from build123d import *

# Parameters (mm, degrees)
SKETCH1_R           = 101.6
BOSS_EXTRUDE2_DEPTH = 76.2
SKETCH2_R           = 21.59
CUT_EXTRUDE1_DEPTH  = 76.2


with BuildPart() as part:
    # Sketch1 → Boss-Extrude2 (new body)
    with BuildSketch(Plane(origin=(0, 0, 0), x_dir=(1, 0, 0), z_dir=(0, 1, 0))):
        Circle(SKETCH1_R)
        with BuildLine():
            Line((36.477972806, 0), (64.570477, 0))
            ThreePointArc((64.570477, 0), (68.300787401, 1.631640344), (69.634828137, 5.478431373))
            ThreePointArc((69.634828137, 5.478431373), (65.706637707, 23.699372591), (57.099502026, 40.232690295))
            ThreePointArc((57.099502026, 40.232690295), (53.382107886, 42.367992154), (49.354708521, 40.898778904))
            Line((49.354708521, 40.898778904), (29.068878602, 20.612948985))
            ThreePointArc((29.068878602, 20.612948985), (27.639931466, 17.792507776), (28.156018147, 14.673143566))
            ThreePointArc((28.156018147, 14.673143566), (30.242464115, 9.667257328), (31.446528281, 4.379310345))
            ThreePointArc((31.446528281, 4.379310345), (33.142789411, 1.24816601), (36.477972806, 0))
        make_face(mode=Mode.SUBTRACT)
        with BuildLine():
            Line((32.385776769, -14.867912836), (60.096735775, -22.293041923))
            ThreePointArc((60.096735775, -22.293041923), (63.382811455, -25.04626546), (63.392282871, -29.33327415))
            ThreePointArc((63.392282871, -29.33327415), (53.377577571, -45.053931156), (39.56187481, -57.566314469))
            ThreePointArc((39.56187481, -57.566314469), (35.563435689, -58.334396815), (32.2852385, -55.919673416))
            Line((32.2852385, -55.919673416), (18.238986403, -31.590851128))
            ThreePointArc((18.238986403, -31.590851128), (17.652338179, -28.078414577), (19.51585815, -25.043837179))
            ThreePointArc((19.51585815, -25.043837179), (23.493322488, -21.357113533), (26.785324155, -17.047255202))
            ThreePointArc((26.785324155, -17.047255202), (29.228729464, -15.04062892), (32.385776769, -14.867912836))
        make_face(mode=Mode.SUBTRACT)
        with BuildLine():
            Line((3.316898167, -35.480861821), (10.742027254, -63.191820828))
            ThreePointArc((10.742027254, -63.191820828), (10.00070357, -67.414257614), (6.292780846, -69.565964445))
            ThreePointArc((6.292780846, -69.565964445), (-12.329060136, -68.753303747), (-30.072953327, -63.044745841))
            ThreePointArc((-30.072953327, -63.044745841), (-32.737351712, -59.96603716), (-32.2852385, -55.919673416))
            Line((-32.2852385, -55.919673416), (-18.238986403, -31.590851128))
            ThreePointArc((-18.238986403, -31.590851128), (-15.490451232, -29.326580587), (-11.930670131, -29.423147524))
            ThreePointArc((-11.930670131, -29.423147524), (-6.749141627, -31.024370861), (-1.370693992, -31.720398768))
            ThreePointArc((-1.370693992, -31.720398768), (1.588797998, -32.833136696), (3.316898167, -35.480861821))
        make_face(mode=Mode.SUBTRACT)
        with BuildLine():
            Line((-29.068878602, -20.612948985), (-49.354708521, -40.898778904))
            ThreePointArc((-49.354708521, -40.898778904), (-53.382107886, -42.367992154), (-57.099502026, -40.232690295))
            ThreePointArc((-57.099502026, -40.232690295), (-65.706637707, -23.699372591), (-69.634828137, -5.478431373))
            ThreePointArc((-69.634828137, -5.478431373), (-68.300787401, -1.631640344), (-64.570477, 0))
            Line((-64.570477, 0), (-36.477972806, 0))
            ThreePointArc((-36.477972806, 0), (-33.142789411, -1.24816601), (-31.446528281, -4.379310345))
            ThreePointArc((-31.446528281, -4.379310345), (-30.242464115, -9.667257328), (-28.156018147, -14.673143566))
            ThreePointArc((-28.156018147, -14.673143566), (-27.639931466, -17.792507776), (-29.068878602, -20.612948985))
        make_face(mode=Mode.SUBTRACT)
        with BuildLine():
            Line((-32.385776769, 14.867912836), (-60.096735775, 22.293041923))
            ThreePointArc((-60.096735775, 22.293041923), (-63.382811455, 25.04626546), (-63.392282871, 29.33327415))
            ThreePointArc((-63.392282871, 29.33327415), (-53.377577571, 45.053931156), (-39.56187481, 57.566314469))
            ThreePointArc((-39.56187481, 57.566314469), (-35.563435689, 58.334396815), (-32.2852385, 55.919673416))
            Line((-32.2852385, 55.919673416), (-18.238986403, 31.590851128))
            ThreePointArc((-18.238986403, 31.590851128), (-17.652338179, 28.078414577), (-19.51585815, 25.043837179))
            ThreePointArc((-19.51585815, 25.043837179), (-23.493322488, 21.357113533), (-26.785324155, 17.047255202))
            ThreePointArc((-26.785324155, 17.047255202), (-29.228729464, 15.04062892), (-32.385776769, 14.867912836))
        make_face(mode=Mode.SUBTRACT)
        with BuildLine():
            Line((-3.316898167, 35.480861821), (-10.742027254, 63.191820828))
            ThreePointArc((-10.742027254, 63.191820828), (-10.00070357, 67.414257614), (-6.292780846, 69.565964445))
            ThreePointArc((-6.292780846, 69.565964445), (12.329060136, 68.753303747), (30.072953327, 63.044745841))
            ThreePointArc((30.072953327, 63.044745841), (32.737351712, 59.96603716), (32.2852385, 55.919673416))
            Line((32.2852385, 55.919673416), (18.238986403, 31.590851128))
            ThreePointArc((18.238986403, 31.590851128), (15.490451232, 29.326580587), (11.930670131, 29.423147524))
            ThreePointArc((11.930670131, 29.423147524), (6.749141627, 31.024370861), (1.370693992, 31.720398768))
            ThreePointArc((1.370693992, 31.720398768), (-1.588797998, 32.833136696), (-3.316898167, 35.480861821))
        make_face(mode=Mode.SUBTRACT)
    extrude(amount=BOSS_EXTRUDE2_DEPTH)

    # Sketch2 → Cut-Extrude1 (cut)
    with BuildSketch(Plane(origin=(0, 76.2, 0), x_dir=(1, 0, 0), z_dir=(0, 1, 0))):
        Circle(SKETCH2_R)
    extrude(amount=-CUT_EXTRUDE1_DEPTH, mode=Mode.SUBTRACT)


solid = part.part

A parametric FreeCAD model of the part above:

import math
import FreeCAD as App
import Part
import Sketcher

V = App.Vector
Q = App.Units.Quantity

doc = App.newDocument("Part")
params = doc.addObject("Spreadsheet::Sheet", "Params")
for row, (alias, value) in enumerate([
    ("sketch1_diameter", "8 in"),
    ("sketch1_radius", "0.2 in"),
    ("sketch1_radius2", "2.75 in"),
    ("sketch1_radius3", "1.25 in"),
    ("pad1_length", "3 in"),
    ("sketch2_diameter", "1.7 in"),
    ("pocket1_length", "3 in"),
], start=1):
    params.set(f"A{row}", alias)
    params.set(f"B{row}", "=" + value)
    params.setAlias(f"B{row}", alias)

body = doc.addObject("PartDesign::Body", "Body")

# Sketch on XZ plane
sketch1 = doc.addObject("Sketcher::SketchObject", "Sketch")
body.addObject(sketch1)
sketch1.AttachmentSupport = (doc.XZ_Plane, [""])
sketch1.MapMode = "FlatFace"
sketch1.addGeometry(Part.Circle(V(0, 0, 0), V(0, 0, 1), 102), False)
sketch1.addGeometry(Part.ArcOfCircle(Part.Circle(V(-2, 37, 0), V(0, 0, 1), 5), math.radians(-88), math.radians(-15)), False)
sketch1.addGeometry(Part.LineSegment(V(3, 35, 0), V(11, 63, 0)), False)
sketch1.addGeometry(Part.ArcOfCircle(Part.Circle(V(6, 65, 0), V(0, 0, 1), 5), math.radians(-15), math.radians(85)), False)
sketch1.addGeometry(Part.ArcOfCircle(Part.Circle(V(0, 0, 0), V(0, 0, 1), 70), math.radians(85), math.radians(116)), False)
sketch1.addGeometry(Part.ArcOfCircle(Part.Circle(V(-28, 58, 0), V(0, 0, 1), 5), math.radians(116), math.radians(210)), False)
sketch1.addGeometry(Part.LineSegment(V(-32, 56, 0), V(-18, 32, 0)), False)
sketch1.addGeometry(Part.ArcOfCircle(Part.Circle(V(-14, 34, 0), V(0, 0, 1), 5), math.radians(-150), math.radians(-68)), False)
sketch1.addGeometry(Part.ArcOfCircle(Part.Circle(V(0, 0, 0), V(0, 0, 1), 32), math.radians(92.47), math.radians(112.07)), False)
sketch1.addGeometry(Part.ArcOfCircle(Part.Circle(V(-33, 17, 0), V(0, 0, 1), 5), math.radians(-28), math.radians(45)), False)
sketch1.addGeometry(Part.LineSegment(V(-29, 21, 0), V(-49, 41, 0)), False)
sketch1.addGeometry(Part.ArcOfCircle(Part.Circle(V(-53, 37, 0), V(0, 0, 1), 5), math.radians(45), math.radians(145)), False)
sketch1.addGeometry(Part.ArcOfCircle(Part.Circle(V(0, 0, 0), V(0, 0, 1), 70), math.radians(145), math.radians(176)), False)
sketch1.addGeometry(Part.ArcOfCircle(Part.Circle(V(-65, 5, 0), V(0, 0, 1), 5), math.radians(176), math.radians(270)), False)
sketch1.addGeometry(Part.LineSegment(V(-65, 0, 0), V(-36, 0, 0)), False)
sketch1.addGeometry(Part.ArcOfCircle(Part.Circle(V(-36, 5, 0), V(0, 0, 1), 5), math.radians(-90), math.radians(-8)), False)
sketch1.addGeometry(Part.ArcOfCircle(Part.Circle(V(0, 0, 0), V(0, 0, 1), 32), math.radians(152.47), math.radians(172.07)), False)
sketch1.addGeometry(Part.ArcOfCircle(Part.Circle(V(31, 20, 0), V(0, 0, 1), 5), math.radians(-148), math.radians(-75)), False)
sketch1.addGeometry(Part.LineSegment(V(32, 15, 0), V(60, 22, 0)), False)
sketch1.addGeometry(Part.ArcOfCircle(Part.Circle(V(59, 27, 0), V(0, 0, 1), 5), math.radians(-75), math.radians(25)), False)
sketch1.addGeometry(Part.ArcOfCircle(Part.Circle(V(0, 0, 0), V(0, 0, 1), 70), math.radians(25), math.radians(56)), False)
sketch1.addGeometry(Part.ArcOfCircle(Part.Circle(V(37, 53, 0), V(0, 0, 1), 5), math.radians(56), math.radians(150)), False)
sketch1.addGeometry(Part.LineSegment(V(32, 56, 0), V(18, 32, 0)), False)
sketch1.addGeometry(Part.ArcOfCircle(Part.Circle(V(23, 29, 0), V(0, 0, 1), 5), math.radians(150), math.radians(232)), False)
sketch1.addGeometry(Part.ArcOfCircle(Part.Circle(V(0, 0, 0), V(0, 0, 1), 32), math.radians(32.47), math.radians(52.07)), False)
sketch1.addGeometry(Part.ArcOfCircle(Part.Circle(V(-31, -20, 0), V(0, 0, 1), 5), math.radians(32), math.radians(105)), False)
sketch1.addGeometry(Part.LineSegment(V(-32, -15, 0), V(-60, -22, 0)), False)
sketch1.addGeometry(Part.ArcOfCircle(Part.Circle(V(-59, -27, 0), V(0, 0, 1), 5), math.radians(105), math.radians(205)), False)
sketch1.addGeometry(Part.ArcOfCircle(Part.Circle(V(0, 0, 0), V(0, 0, 1), 70), math.radians(-155), math.radians(-124)), False)
sketch1.addGeometry(Part.ArcOfCircle(Part.Circle(V(-37, -53, 0), V(0, 0, 1), 5), math.radians(-124), math.radians(-30)), False)
sketch1.addGeometry(Part.LineSegment(V(-32, -56, 0), V(-18, -32, 0)), False)
sketch1.addGeometry(Part.ArcOfCircle(Part.Circle(V(-23, -29, 0), V(0, 0, 1), 5), math.radians(-30), math.radians(52)), False)
sketch1.addGeometry(Part.ArcOfCircle(Part.Circle(V(0, 0, 0), V(0, 0, 1), 32), math.radians(-147.53), math.radians(-127.93)), False)
sketch1.addGeometry(Part.LineSegment(V(65, 0, 0), V(36, 0, 0)), False)
sketch1.addGeometry(Part.ArcOfCircle(Part.Circle(V(36, -5, 0), V(0, 0, 1), 5), math.radians(90), math.radians(172)), False)
sketch1.addGeometry(Part.ArcOfCircle(Part.Circle(V(0, 0, 0), V(0, 0, 1), 32), math.radians(-27.53), math.radians(-7.93)), False)
sketch1.addGeometry(Part.ArcOfCircle(Part.Circle(V(33, -17, 0), V(0, 0, 1), 5), math.radians(152), math.radians(225)), False)
sketch1.addGeometry(Part.LineSegment(V(29, -21, 0), V(49, -41, 0)), False)
sketch1.addGeometry(Part.ArcOfCircle(Part.Circle(V(53, -37, 0), V(0, 0, 1), 5), math.radians(-135), math.radians(-35)), False)
sketch1.addGeometry(Part.ArcOfCircle(Part.Circle(V(0, 0, 0), V(0, 0, 1), 70), math.radians(-35), math.radians(-4)), False)
sketch1.addGeometry(Part.ArcOfCircle(Part.Circle(V(65, -5, 0), V(0, 0, 1), 5), math.radians(-4), math.radians(90)), False)
sketch1.addGeometry(Part.ArcOfCircle(Part.Circle(V(2, -37, 0), V(0, 0, 1), 5), math.radians(92), math.radians(165)), False)
sketch1.addGeometry(Part.LineSegment(V(-3, -35, 0), V(-11, -63, 0)), False)
sketch1.addGeometry(Part.ArcOfCircle(Part.Circle(V(-6, -65, 0), V(0, 0, 1), 5), math.radians(165), math.radians(265)), False)
sketch1.addGeometry(Part.ArcOfCircle(Part.Circle(V(0, 0, 0), V(0, 0, 1), 70), math.radians(-95), math.radians(-64)), False)
sketch1.addGeometry(Part.ArcOfCircle(Part.Circle(V(28, -58, 0), V(0, 0, 1), 5), math.radians(-64), math.radians(30)), False)
sketch1.addGeometry(Part.LineSegment(V(32, -56, 0), V(18, -32, 0)), False)
sketch1.addGeometry(Part.ArcOfCircle(Part.Circle(V(14, -34, 0), V(0, 0, 1), 5), math.radians(30), math.radians(112)), False)
sketch1.addGeometry(Part.ArcOfCircle(Part.Circle(V(0, 0, 0), V(0, 0, 1), 32), math.radians(-87.53), math.radians(-67.93)), False)
sketch1.addConstraint(Sketcher.Constraint("Tangent", 1, 2, 2, 1))
sketch1.addConstraint(Sketcher.Constraint("Tangent", 2, 2, 3, 1))
sketch1.addConstraint(Sketcher.Constraint("Tangent", 3, 2, 4, 1))
sketch1.addConstraint(Sketcher.Constraint("Tangent", 4, 2, 5, 1))
sketch1.addConstraint(Sketcher.Constraint("Tangent", 5, 2, 6, 1))
sketch1.addConstraint(Sketcher.Constraint("Tangent", 6, 2, 7, 1))
sketch1.addConstraint(Sketcher.Constraint("Tangent", 7, 2, 8, 2))
sketch1.addConstraint(Sketcher.Constraint("Tangent", 8, 1, 1, 1))
sketch1.addConstraint(Sketcher.Constraint("Tangent", 9, 2, 10, 1))
sketch1.addConstraint(Sketcher.Constraint("Tangent", 10, 2, 11, 1))
sketch1.addConstraint(Sketcher.Constraint("Tangent", 11, 2, 12, 1))
sketch1.addConstraint(Sketcher.Constraint("Tangent", 12, 2, 13, 1))
sketch1.addConstraint(Sketcher.Constraint("Tangent", 13, 2, 14, 1))
sketch1.addConstraint(Sketcher.Constraint("Tangent", 14, 2, 15, 1))
sketch1.addConstraint(Sketcher.Constraint("Tangent", 15, 2, 16, 2))
sketch1.addConstraint(Sketcher.Constraint("Tangent", 16, 1, 9, 1))
sketch1.addConstraint(Sketcher.Constraint("Tangent", 17, 2, 18, 1))
sketch1.addConstraint(Sketcher.Constraint("Tangent", 18, 2, 19, 1))
sketch1.addConstraint(Sketcher.Constraint("Tangent", 19, 2, 20, 1))
sketch1.addConstraint(Sketcher.Constraint("Tangent", 20, 2, 21, 1))
sketch1.addConstraint(Sketcher.Constraint("Tangent", 21, 2, 22, 1))
sketch1.addConstraint(Sketcher.Constraint("Tangent", 22, 2, 23, 1))
sketch1.addConstraint(Sketcher.Constraint("Tangent", 23, 2, 24, 2))
sketch1.addConstraint(Sketcher.Constraint("Tangent", 24, 1, 17, 1))
sketch1.addConstraint(Sketcher.Constraint("Tangent", 25, 2, 26, 1))
sketch1.addConstraint(Sketcher.Constraint("Tangent", 26, 2, 27, 1))
sketch1.addConstraint(Sketcher.Constraint("Tangent", 27, 2, 28, 1))
sketch1.addConstraint(Sketcher.Constraint("Tangent", 28, 2, 29, 1))
sketch1.addConstraint(Sketcher.Constraint("Tangent", 29, 2, 30, 1))
sketch1.addConstraint(Sketcher.Constraint("Tangent", 30, 2, 31, 1))
sketch1.addConstraint(Sketcher.Constraint("Tangent", 31, 2, 32, 2))
sketch1.addConstraint(Sketcher.Constraint("Tangent", 32, 1, 25, 1))
sketch1.addConstraint(Sketcher.Constraint("Tangent", 33, 2, 34, 1))
sketch1.addConstraint(Sketcher.Constraint("Tangent", 34, 2, 35, 2))
sketch1.addConstraint(Sketcher.Constraint("Tangent", 35, 1, 36, 1))
sketch1.addConstraint(Sketcher.Constraint("Tangent", 36, 2, 37, 1))
sketch1.addConstraint(Sketcher.Constraint("Tangent", 37, 2, 38, 1))
sketch1.addConstraint(Sketcher.Constraint("Tangent", 38, 2, 39, 1))
sketch1.addConstraint(Sketcher.Constraint("Tangent", 39, 2, 40, 1))
sketch1.addConstraint(Sketcher.Constraint("Tangent", 40, 2, 33, 1))
sketch1.addConstraint(Sketcher.Constraint("Tangent", 41, 2, 42, 1))
sketch1.addConstraint(Sketcher.Constraint("Tangent", 42, 2, 43, 1))
sketch1.addConstraint(Sketcher.Constraint("Tangent", 43, 2, 44, 1))
sketch1.addConstraint(Sketcher.Constraint("Tangent", 44, 2, 45, 1))
sketch1.addConstraint(Sketcher.Constraint("Tangent", 45, 2, 46, 1))
sketch1.addConstraint(Sketcher.Constraint("Tangent", 46, 2, 47, 1))
sketch1.addConstraint(Sketcher.Constraint("Tangent", 47, 2, 48, 2))
sketch1.addConstraint(Sketcher.Constraint("Tangent", 48, 1, 41, 1))
sketch1.addConstraint(Sketcher.Constraint("Horizontal", 14))
sketch1.addConstraint(Sketcher.Constraint("Horizontal", 33))
sketch1.addConstraint(Sketcher.Constraint("Coincident", 0, 3, -1, 1))
sketch1.addConstraint(Sketcher.Constraint("Coincident", 4, 3, -1, 1))
sketch1.addConstraint(Sketcher.Constraint("Coincident", 8, 3, -1, 1))
sketch1.addConstraint(Sketcher.Constraint("Coincident", 12, 3, -1, 1))
sketch1.addConstraint(Sketcher.Constraint("Coincident", 16, 3, -1, 1))
sketch1.addConstraint(Sketcher.Constraint("Coincident", 20, 3, -1, 1))
sketch1.addConstraint(Sketcher.Constraint("Coincident", 24, 3, -1, 1))
sketch1.addConstraint(Sketcher.Constraint("Coincident", 28, 3, -1, 1))
sketch1.addConstraint(Sketcher.Constraint("Coincident", 32, 3, -1, 1))
sketch1.addConstraint(Sketcher.Constraint("Coincident", 35, 3, -1, 1))
sketch1.addConstraint(Sketcher.Constraint("Coincident", 39, 3, -1, 1))
sketch1.addConstraint(Sketcher.Constraint("Coincident", 44, 3, -1, 1))
sketch1.addConstraint(Sketcher.Constraint("Coincident", 48, 3, -1, 1))
sketch1.addConstraint(Sketcher.Constraint("Equal", 1, 3))
sketch1.addConstraint(Sketcher.Constraint("Equal", 3, 5))
sketch1.addConstraint(Sketcher.Constraint("Equal", 5, 7))
sketch1.addConstraint(Sketcher.Constraint("Equal", 7, 9))
sketch1.addConstraint(Sketcher.Constraint("Equal", 9, 11))
sketch1.addConstraint(Sketcher.Constraint("Equal", 4, 12))
sketch1.addConstraint(Sketcher.Constraint("Equal", 11, 13))
sketch1.addConstraint(Sketcher.Constraint("Equal", 13, 15))
sketch1.addConstraint(Sketcher.Constraint("Equal", 8, 16))
sketch1.addConstraint(Sketcher.Constraint("Equal", 15, 17))
sketch1.addConstraint(Sketcher.Constraint("Equal", 17, 19))
sketch1.addConstraint(Sketcher.Constraint("Equal", 12, 20))
sketch1.addConstraint(Sketcher.Constraint("Equal", 19, 21))
sketch1.addConstraint(Sketcher.Constraint("Equal", 21, 23))
sketch1.addConstraint(Sketcher.Constraint("Equal", 16, 24))
sketch1.addConstraint(Sketcher.Constraint("Equal", 23, 25))
sketch1.addConstraint(Sketcher.Constraint("Equal", 25, 27))
sketch1.addConstraint(Sketcher.Constraint("Equal", 20, 28))
sketch1.addConstraint(Sketcher.Constraint("Equal", 27, 29))
sketch1.addConstraint(Sketcher.Constraint("Equal", 29, 31))
sketch1.addConstraint(Sketcher.Constraint("Equal", 24, 32))
sketch1.addConstraint(Sketcher.Constraint("Equal", 31, 34))
sketch1.addConstraint(Sketcher.Constraint("Equal", 32, 35))
sketch1.addConstraint(Sketcher.Constraint("Equal", 34, 36))
sketch1.addConstraint(Sketcher.Constraint("Equal", 36, 38))
sketch1.addConstraint(Sketcher.Constraint("Equal", 28, 39))
sketch1.addConstraint(Sketcher.Constraint("Equal", 38, 40))
sketch1.addConstraint(Sketcher.Constraint("Equal", 40, 41))
sketch1.addConstraint(Sketcher.Constraint("Equal", 41, 43))
sketch1.addConstraint(Sketcher.Constraint("Equal", 39, 44))
sketch1.addConstraint(Sketcher.Constraint("Equal", 43, 45))
sketch1.addConstraint(Sketcher.Constraint("Equal", 45, 47))
sketch1.addConstraint(Sketcher.Constraint("Equal", 35, 48))
sketch1.addConstraint(Sketcher.Constraint("Symmetric", 17, 2, 25, 2, -1, 1))
sketch1.addConstraint(Sketcher.Constraint("Symmetric", 21, 2, 29, 2, -1, 1))
sketch1.addConstraint(Sketcher.Constraint("Symmetric", 9, 2, 36, 2, -1, 1))
sketch1.addConstraint(Sketcher.Constraint("Symmetric", 1, 2, 41, 2, -1, 1))
sketch1.addConstraint(Sketcher.Constraint("Symmetric", 5, 2, 45, 2, -1, 1))
sketch1.addConstraint(Sketcher.Constraint("Symmetric", 5, 2, 21, 2, -2))
sketch1.addConstraint(Sketcher.Constraint("Symmetric", 14, 2, 33, 2, -2))
sketch1.addConstraint(Sketcher.Constraint("Horizontal", 6, 2, 22, 2))
sketch1.addConstraint(Sketcher.Constraint("Equal", 2, 10))
sketch1.addConstraint(Sketcher.Constraint("Equal", 10, 18))
sketch1.addConstraint(Sketcher.Constraint("Diameter", 0, Q("8 in")))
sketch1.addConstraint(Sketcher.Constraint("Radius", 1, Q("0.2 in")))
sketch1.addConstraint(Sketcher.Constraint("Radius", 4, Q("2.75 in")))
sketch1.addConstraint(Sketcher.Constraint("Radius", 8, Q("1.25 in")))
sketch1.addConstraint(Sketcher.Constraint("Angle", 2, Q("75 deg")))
sketch1.addConstraint(Sketcher.Constraint("Angle", 6, Q("-60 deg")))
sketch1.addConstraint(Sketcher.Constraint("Angle", 10, Q("135 deg")))
sketch1.addConstraint(Sketcher.Constraint("Angle", 18, Q("15 deg")))
sketch1.addConstraint(Sketcher.Constraint("DistanceX", -1, 1, 1, 2, 3.316898))
sketch1.setExpression("Constraints[106]", "Params.sketch1_diameter")
sketch1.setExpression("Constraints[107]", "Params.sketch1_radius")
sketch1.setExpression("Constraints[108]", "Params.sketch1_radius2")
sketch1.setExpression("Constraints[109]", "Params.sketch1_radius3")
pad1 = doc.addObject("PartDesign::Pad", "Pad")
body.addObject(pad1)
pad1.Profile = sketch1
pad1.setExpression("Length", "Params.pad1_length")
pad1.Reversed = True

# Sketch on XZ plane
sketch2 = doc.addObject("Sketcher::SketchObject", "Sketch001")
body.addObject(sketch2)
sketch2.AttachmentSupport = (doc.XZ_Plane, [""])
sketch2.MapMode = "FlatFace"
sketch2.AttachmentOffset = App.Placement(V(0, 0, -3 * 25.4), App.Rotation())
sketch2.addGeometry(Part.Circle(V(0, 0, 0), V(0, 0, 1), 22), False)
sketch2.addConstraint(Sketcher.Constraint("Coincident", 0, 3, -1, 1))
sketch2.addConstraint(Sketcher.Constraint("Diameter", 0, Q("1.7 in")))
sketch2.setExpression("Constraints[1]", "Params.sketch2_diameter")
pocket1 = doc.addObject("PartDesign::Pocket", "Pocket")
body.addObject(pocket1)
pocket1.Profile = sketch2
pocket1.setExpression("Length", "Params.pocket1_length")
pocket1.Reversed = True

doc.recompute()
